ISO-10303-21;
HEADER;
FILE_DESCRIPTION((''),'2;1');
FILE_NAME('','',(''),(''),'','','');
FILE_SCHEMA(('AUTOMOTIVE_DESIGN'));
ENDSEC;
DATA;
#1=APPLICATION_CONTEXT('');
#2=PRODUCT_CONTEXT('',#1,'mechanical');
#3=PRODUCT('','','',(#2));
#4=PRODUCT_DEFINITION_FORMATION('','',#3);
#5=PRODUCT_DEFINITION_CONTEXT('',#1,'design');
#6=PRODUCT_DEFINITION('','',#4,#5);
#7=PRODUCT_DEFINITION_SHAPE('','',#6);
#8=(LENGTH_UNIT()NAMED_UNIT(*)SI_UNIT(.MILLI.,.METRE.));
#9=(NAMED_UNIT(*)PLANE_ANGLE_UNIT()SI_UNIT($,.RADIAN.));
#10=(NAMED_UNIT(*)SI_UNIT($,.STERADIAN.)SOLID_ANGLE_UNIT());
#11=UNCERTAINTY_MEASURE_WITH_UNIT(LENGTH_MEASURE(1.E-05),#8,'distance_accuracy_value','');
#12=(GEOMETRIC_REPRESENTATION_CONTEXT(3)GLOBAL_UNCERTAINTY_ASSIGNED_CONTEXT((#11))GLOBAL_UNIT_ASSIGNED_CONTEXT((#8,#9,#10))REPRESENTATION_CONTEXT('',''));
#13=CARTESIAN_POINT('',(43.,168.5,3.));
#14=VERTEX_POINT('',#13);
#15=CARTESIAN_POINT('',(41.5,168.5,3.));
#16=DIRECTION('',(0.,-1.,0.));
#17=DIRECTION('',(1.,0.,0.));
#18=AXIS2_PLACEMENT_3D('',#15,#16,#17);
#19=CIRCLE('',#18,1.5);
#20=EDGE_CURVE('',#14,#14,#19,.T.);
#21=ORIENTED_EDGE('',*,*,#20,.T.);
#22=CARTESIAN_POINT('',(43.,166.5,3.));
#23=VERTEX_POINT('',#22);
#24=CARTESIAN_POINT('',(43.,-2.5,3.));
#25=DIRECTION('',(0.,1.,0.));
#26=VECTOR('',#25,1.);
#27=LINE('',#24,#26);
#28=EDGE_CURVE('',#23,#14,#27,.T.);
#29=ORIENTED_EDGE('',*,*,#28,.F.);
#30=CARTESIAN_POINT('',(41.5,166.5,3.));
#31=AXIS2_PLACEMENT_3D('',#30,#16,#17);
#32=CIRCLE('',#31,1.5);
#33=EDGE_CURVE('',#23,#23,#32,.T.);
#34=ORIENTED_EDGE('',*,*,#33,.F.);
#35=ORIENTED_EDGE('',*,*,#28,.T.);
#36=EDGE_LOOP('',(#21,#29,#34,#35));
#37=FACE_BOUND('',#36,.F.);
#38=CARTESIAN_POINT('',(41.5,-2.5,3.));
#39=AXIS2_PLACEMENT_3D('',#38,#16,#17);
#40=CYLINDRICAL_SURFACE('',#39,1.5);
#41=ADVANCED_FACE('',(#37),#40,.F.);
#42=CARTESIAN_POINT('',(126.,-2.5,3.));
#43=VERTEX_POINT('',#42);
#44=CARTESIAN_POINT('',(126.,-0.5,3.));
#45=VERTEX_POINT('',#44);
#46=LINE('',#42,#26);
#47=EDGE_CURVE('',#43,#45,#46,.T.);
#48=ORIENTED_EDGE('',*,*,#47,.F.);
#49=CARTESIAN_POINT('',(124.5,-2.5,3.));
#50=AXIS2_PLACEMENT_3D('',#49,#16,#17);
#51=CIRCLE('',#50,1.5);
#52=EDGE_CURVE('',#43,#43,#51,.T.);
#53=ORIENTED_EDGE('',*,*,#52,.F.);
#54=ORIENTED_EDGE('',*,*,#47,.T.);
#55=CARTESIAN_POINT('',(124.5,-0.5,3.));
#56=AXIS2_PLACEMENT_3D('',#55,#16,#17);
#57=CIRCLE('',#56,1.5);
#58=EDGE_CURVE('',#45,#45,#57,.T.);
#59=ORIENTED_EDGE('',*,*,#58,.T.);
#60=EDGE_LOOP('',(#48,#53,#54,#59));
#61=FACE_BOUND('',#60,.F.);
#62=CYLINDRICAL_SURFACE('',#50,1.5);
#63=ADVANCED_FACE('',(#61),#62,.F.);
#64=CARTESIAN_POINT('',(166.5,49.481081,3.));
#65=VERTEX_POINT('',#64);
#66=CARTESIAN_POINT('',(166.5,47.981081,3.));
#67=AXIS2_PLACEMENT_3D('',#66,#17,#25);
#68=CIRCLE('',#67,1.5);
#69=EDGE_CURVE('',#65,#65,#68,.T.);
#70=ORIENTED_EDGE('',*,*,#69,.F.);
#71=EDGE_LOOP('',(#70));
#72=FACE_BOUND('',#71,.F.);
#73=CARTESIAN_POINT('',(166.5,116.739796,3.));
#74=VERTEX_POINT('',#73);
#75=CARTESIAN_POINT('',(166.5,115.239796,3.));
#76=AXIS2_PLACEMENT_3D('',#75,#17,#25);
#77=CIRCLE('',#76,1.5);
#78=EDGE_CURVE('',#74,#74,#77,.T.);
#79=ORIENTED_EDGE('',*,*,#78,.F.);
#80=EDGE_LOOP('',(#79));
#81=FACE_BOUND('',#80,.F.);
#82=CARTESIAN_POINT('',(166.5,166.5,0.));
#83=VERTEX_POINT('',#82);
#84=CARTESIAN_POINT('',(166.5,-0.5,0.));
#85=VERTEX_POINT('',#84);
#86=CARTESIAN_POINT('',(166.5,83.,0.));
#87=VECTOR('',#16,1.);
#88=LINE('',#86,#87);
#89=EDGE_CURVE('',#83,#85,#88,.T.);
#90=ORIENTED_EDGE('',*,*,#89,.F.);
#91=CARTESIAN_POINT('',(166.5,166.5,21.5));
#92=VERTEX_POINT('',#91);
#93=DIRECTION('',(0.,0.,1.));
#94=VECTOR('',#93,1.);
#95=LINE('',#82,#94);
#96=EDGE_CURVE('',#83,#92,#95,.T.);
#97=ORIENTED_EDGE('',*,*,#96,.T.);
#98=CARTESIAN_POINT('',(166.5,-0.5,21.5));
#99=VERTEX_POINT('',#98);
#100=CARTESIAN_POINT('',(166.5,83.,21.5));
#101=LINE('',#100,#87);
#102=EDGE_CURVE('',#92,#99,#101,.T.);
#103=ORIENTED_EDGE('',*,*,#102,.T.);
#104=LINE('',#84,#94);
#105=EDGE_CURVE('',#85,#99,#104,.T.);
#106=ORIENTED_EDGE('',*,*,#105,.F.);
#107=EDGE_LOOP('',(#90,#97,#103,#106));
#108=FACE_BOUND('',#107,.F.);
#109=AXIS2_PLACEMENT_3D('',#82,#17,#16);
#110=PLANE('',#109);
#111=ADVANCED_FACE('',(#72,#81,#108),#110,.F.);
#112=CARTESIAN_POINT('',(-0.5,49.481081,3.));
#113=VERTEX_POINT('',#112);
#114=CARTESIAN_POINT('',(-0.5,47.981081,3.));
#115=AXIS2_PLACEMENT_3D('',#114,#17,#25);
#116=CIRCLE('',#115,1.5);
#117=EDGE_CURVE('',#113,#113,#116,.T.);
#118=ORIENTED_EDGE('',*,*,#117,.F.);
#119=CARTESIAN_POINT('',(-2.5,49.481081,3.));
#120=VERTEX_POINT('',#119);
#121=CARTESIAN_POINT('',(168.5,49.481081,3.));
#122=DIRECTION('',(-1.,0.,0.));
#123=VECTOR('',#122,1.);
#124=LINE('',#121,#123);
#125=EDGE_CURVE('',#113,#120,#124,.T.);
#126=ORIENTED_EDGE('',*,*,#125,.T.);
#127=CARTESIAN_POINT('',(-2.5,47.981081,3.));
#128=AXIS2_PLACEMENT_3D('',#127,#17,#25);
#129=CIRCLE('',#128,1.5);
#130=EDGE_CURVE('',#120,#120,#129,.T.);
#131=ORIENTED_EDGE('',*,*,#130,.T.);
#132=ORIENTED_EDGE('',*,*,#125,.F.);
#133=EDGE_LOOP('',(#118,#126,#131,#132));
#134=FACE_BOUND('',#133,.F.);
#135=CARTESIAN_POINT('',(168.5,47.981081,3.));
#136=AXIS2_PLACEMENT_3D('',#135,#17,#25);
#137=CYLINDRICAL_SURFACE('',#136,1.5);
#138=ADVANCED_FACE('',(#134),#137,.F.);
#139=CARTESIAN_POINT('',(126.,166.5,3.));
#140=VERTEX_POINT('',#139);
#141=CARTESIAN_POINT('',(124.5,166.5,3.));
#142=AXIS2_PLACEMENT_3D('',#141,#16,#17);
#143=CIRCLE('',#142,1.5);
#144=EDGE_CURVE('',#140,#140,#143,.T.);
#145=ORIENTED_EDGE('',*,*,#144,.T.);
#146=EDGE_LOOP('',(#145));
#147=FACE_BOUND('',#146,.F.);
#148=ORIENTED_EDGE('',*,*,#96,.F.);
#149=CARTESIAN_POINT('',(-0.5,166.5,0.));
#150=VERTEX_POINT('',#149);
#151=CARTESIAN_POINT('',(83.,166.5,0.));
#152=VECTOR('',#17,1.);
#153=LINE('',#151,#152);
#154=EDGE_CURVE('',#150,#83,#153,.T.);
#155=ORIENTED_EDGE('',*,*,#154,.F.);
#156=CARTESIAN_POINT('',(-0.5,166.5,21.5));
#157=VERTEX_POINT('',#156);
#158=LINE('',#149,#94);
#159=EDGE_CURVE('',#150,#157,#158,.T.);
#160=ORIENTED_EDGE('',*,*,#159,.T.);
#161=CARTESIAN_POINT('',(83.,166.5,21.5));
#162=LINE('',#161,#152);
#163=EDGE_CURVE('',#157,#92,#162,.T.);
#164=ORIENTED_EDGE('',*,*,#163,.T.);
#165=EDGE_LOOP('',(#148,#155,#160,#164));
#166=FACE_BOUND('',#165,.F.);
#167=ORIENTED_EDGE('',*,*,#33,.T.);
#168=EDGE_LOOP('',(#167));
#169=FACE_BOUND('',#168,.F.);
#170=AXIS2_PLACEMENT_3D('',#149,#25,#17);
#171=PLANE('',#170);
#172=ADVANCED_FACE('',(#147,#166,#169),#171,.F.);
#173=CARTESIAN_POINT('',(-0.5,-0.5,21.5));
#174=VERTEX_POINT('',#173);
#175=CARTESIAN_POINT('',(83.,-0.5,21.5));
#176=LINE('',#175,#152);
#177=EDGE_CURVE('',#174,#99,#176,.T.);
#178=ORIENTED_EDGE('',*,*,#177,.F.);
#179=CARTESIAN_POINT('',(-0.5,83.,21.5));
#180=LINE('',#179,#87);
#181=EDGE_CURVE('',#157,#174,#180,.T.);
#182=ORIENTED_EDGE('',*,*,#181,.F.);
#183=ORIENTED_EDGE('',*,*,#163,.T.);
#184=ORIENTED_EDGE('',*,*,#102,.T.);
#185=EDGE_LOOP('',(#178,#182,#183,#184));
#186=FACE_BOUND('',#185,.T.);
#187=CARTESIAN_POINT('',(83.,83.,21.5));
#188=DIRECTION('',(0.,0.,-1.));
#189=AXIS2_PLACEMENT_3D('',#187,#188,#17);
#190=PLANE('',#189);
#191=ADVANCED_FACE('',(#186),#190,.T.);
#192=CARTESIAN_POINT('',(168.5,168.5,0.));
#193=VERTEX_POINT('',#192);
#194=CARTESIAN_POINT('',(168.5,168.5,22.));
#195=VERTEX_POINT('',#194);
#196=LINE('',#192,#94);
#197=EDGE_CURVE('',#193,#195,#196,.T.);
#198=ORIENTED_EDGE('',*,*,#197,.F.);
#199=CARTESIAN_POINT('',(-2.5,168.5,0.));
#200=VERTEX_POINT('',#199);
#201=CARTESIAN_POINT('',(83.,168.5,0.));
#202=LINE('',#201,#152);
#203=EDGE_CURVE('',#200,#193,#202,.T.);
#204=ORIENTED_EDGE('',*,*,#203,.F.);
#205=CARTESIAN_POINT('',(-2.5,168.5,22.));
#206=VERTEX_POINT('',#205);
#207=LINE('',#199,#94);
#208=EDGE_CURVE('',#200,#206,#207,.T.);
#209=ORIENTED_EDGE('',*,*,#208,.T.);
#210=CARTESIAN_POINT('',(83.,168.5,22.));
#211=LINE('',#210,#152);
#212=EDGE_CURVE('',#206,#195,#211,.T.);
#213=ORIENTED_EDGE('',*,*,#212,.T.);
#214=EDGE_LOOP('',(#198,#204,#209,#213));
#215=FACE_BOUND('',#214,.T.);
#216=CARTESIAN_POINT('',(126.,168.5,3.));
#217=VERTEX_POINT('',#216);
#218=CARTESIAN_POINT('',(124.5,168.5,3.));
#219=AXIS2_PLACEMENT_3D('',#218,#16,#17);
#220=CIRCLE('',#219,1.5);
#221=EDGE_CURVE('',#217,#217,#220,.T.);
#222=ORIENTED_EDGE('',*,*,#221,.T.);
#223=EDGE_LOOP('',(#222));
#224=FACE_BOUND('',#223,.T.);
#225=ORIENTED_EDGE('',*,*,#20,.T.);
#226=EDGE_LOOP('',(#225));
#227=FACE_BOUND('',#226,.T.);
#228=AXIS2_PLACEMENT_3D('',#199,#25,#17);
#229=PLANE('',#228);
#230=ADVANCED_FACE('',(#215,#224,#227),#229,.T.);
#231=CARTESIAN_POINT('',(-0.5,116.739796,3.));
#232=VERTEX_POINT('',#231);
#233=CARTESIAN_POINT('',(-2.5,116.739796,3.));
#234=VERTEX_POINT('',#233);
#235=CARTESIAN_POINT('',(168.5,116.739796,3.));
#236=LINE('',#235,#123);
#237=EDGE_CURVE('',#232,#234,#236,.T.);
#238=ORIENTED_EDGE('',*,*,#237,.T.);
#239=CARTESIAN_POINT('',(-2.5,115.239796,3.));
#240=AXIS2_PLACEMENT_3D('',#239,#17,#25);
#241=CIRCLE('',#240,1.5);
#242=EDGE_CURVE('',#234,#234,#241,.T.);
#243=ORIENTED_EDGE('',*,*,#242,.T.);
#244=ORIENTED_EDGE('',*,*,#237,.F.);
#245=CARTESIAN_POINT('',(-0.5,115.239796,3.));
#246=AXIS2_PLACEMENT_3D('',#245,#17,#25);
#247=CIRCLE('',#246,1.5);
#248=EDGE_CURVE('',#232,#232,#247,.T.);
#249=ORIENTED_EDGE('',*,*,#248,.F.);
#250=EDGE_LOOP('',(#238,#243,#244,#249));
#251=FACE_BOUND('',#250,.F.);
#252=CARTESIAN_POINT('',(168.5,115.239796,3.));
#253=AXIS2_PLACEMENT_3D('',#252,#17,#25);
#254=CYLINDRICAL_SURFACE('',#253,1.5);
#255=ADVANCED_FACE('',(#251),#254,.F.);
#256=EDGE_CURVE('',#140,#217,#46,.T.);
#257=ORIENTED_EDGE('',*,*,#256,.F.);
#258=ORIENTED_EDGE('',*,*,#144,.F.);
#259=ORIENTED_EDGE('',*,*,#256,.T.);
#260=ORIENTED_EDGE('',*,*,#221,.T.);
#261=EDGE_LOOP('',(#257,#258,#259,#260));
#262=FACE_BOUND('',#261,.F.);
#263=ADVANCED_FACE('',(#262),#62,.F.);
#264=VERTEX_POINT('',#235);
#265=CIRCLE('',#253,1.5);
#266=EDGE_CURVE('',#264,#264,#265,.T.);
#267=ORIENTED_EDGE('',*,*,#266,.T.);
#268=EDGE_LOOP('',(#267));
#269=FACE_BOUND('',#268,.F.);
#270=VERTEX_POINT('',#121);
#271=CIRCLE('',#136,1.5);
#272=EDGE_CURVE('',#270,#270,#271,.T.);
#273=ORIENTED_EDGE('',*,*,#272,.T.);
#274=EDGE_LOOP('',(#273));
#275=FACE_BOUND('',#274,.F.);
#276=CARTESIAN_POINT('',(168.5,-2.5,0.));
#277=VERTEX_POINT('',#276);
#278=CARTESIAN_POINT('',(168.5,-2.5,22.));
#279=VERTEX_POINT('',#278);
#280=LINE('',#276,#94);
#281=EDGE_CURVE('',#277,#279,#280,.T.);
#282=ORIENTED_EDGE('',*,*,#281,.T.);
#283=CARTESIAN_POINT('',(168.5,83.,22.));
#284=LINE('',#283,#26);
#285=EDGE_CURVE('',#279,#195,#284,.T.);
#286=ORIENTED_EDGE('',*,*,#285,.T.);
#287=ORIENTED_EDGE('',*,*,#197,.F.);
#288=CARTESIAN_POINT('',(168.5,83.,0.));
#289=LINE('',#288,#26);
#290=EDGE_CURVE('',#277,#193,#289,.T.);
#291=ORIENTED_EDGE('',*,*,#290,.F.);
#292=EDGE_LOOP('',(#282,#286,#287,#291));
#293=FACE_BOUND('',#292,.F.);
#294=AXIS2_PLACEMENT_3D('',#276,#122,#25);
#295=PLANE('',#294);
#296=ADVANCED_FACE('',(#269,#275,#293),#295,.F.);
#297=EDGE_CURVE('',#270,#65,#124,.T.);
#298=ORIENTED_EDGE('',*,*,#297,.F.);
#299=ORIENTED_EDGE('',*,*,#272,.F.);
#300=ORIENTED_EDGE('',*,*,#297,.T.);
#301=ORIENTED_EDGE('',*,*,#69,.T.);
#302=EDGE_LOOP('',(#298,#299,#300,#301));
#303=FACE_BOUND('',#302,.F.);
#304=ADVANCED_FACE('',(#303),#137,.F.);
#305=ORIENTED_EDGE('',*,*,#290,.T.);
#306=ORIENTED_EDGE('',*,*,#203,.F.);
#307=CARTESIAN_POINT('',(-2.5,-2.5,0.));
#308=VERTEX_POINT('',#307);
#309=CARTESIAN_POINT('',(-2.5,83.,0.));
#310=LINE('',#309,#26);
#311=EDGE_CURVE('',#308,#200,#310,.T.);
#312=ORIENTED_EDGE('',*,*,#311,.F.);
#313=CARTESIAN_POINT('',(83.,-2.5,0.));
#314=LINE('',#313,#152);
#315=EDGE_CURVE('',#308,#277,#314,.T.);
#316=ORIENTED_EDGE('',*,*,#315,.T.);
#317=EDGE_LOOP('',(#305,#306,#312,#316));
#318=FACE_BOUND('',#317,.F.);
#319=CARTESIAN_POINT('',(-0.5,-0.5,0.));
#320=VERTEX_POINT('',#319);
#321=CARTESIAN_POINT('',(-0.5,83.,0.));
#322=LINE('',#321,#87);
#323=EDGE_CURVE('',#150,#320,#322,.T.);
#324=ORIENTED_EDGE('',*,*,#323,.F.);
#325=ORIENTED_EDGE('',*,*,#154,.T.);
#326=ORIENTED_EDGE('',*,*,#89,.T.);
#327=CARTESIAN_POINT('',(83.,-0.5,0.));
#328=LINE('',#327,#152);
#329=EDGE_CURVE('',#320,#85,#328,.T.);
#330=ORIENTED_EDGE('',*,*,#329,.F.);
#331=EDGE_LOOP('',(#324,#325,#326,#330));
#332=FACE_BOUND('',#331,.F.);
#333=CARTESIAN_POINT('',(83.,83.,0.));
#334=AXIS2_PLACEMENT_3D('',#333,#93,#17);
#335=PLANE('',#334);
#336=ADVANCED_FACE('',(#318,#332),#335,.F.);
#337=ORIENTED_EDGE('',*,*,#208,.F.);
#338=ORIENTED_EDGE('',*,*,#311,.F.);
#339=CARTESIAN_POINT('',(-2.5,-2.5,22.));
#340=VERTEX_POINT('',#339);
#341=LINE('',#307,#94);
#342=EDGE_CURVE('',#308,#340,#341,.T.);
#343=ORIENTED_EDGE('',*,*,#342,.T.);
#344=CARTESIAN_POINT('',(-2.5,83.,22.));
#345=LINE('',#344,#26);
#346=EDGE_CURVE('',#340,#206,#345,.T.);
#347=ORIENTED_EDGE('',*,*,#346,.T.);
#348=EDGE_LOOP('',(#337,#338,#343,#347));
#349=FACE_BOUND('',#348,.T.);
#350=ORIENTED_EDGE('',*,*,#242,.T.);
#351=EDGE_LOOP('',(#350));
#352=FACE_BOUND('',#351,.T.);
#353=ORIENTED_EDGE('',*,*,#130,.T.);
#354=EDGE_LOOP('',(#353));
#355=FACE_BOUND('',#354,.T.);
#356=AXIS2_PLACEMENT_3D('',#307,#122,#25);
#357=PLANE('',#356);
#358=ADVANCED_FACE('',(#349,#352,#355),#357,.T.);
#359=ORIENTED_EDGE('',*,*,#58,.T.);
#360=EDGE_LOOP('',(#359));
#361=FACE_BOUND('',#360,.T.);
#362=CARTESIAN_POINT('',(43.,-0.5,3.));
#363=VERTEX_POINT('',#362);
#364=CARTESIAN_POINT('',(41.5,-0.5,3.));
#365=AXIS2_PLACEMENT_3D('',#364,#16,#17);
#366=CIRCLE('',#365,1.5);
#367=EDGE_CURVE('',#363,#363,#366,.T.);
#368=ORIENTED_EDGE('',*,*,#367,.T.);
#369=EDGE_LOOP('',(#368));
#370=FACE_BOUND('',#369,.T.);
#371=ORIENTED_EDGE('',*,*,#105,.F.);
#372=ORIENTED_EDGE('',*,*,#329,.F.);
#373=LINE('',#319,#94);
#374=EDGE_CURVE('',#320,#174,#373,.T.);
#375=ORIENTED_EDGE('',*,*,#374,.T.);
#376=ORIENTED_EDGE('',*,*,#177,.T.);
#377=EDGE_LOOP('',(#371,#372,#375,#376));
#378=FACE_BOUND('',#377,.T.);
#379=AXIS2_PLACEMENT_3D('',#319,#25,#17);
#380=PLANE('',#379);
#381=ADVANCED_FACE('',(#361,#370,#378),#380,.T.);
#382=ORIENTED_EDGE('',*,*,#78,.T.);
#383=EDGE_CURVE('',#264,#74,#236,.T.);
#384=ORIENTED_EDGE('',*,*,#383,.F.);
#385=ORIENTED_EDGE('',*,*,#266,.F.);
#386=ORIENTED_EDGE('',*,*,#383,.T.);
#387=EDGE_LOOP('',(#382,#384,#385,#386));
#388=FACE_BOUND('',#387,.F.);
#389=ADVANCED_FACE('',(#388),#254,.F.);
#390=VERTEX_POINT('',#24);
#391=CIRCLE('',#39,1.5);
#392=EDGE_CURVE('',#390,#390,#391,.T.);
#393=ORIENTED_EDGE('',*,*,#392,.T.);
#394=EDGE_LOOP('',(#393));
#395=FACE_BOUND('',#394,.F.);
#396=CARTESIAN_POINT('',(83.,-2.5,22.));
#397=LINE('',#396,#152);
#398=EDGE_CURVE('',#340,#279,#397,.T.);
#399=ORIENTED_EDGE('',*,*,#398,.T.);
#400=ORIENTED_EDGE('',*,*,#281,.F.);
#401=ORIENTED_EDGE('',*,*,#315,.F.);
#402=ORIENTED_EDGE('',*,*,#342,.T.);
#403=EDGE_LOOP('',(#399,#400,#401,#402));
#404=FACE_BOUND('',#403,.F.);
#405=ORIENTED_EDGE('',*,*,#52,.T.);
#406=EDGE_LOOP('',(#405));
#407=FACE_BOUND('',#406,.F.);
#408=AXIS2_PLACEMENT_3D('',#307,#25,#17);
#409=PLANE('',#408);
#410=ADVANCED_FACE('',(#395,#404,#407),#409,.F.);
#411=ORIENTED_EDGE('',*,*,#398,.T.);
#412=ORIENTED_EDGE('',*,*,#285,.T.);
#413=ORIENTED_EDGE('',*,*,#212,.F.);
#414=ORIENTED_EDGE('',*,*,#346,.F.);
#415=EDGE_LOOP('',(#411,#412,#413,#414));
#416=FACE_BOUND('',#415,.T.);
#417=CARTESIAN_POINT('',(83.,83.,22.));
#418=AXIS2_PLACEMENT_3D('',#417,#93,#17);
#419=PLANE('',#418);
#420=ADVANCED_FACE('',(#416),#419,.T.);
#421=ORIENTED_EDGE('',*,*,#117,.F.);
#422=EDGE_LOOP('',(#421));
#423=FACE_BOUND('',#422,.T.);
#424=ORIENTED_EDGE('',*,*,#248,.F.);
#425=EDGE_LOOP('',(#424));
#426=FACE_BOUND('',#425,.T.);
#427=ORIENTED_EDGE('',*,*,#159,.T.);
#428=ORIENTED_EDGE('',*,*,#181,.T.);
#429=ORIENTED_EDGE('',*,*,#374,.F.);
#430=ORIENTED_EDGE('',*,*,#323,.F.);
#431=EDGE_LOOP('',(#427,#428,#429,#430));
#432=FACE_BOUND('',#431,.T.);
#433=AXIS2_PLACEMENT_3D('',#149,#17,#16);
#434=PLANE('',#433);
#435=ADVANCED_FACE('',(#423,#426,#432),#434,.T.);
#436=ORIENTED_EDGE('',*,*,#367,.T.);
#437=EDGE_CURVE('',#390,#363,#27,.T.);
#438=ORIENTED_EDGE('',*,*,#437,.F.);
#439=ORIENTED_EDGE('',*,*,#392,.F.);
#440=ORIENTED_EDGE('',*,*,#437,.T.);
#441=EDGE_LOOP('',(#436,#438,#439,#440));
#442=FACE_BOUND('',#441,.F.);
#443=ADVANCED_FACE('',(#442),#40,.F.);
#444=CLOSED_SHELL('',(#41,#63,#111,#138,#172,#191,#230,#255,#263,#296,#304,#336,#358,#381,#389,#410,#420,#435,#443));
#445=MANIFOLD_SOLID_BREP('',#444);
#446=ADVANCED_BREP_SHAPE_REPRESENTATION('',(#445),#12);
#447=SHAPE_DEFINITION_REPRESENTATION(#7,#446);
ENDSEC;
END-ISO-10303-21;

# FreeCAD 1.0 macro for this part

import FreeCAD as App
import Part
import Sketcher

V = App.Vector
Q = App.Units.Quantity

doc = App.newDocument("Part")
body = doc.addObject("PartDesign::Body", "Body")

# Sketch on XY plane
sketch1 = body.newObject("Sketcher::SketchObject", "Sketch")
sketch1.AttachmentSupport = (doc.getObject("XY_Plane"), [""])
sketch1.MapMode = "FlatFace"
sketch1.addGeometry([
    Part.LineSegment(V(-2, 168, 0), V(-2, -2, 0)),
    Part.LineSegment(V(-2, -2, 0), V(168, -2, 0)),
    Part.LineSegment(V(168, -2, 0), V(168, 168, 0)),
    Part.LineSegment(V(168, 168, 0), V(-2, 168, 0)),
], False)
sketch1.addConstraint([
    Sketcher.Constraint("Coincident", 0, 2, 1, 1),
    Sketcher.Constraint("Coincident", 1, 2, 2, 1),
    Sketcher.Constraint("Coincident", 2, 2, 3, 1),
    Sketcher.Constraint("Coincident", 3, 2, 0, 1),
    Sketcher.Constraint("Vertical", 0),
    Sketcher.Constraint("Horizontal", 1),
    Sketcher.Constraint("Vertical", 2),
    Sketcher.Constraint("Horizontal", 3),
    Sketcher.Constraint("Equal", 3, 0),
    Sketcher.Constraint("DistanceX", 1, 1, 1, 2, Q("171 mm")),
    Sketcher.Constraint("DistanceX", 0, 2, -1, 1, Q("2.5 mm")),
    Sketcher.Constraint("DistanceY", 0, 2, -1, 1, Q("2.5 mm")),
])
pad1 = body.newObject("PartDesign::Pad", "Pad")
pad1.Profile = sketch1
pad1.Length = 22

# Sketch on XY plane
sketch2 = body.newObject("Sketcher::SketchObject", "Sketch001")
sketch2.AttachmentSupport = (doc.getObject("XY_Plane"), [""])
sketch2.MapMode = "FlatFace"
sketch2.addGeometry([
    Part.LineSegment(V(0, 0, 0), V(0, 166, 0)),
    Part.LineSegment(V(0, 166, 0), V(166, 166, 0)),
    Part.LineSegment(V(166, 166, 0), V(166, 0, 0)),
    Part.LineSegment(V(166, 0, 0), V(0, 0, 0)),
], False)
sketch2.addConstraint([
    Sketcher.Constraint("Coincident", 0, 2, 1, 1),
    Sketcher.Constraint("Coincident", 1, 2, 2, 1),
    Sketcher.Constraint("Coincident", 2, 2, 3, 1),
    Sketcher.Constraint("Coincident", 3, 2, 0, 1),
    Sketcher.Constraint("Vertical", 0),
    Sketcher.Constraint("Horizontal", 1),
    Sketcher.Constraint("Vertical", 2),
    Sketcher.Constraint("Horizontal", 3),
    Sketcher.Constraint("Equal", 3, 0),
    Sketcher.Constraint("DistanceX", 1, 1, 1, 2, Q("167 mm")),
    Sketcher.Constraint("DistanceX", 0, 2, -1, 1, Q("0.5 mm")),
    Sketcher.Constraint("DistanceY", -1, 1, 0, 2, Q("166.5 mm")),
])
pocket1 = body.newObject("PartDesign::Pocket", "Pocket")
pocket1.Profile = sketch2
pocket1.Length = 21.5
pocket1.Reversed = True

# Sketch on XZ plane
sketch3 = body.newObject("Sketcher::SketchObject", "Sketch002")
sketch3.AttachmentSupport = (doc.getObject("XZ_Plane"), [""])
sketch3.MapMode = "FlatFace"
sketch3.AttachmentOffset = App.Placement(V(0, 0, 2.5), App.Rotation())
sketch3.addGeometry([
    Part.Circle(V(41.5, 3, 0), V(0, 0, 1), 1.5),
    Part.Circle(V(124.5, 3, 0), V(0, 0, 1), 1.5),
], False)
sketch3.addConstraint([
    Sketcher.Constraint("Equal", 0, 1),
    Sketcher.Constraint("Horizontal", 0, 3, 1, 3),
    Sketcher.Constraint("Diameter", 0, Q("3 mm")),
    Sketcher.Constraint("DistanceY", -1, 1, 0, 3, Q("3 mm")),
    Sketcher.Constraint("DistanceX", 0, 3, 1, 3, Q("83 mm")),
    Sketcher.Constraint("DistanceX", -1, 1, 0, 3, Q("41.5 mm")),
])
pocket2 = body.newObject("PartDesign::Pocket", "Pocket001")
pocket2.Profile = sketch3
pocket2.Type = "ThroughAll"

# Sketch on YZ plane
sketch4 = body.newObject("Sketcher::SketchObject", "Sketch003")
sketch4.AttachmentSupport = (doc.getObject("YZ_Plane"), [""])
sketch4.MapMode = "FlatFace"
sketch4.AttachmentOffset = App.Placement(V(0, 0, 168.5), App.Rotation())
sketch4.addGeometry([
    Part.Circle(V(48, 3, 0), V(0, 0, 1), 1.5),
    Part.Circle(V(115.2, 3, 0), V(0, 0, 1), 1.5),
], False)
sketch4.addConstraint([
    Sketcher.Constraint("Equal", 0, 1),
    Sketcher.Constraint("Horizontal", 0, 3, 1, 3),
    Sketcher.Constraint("Diameter", 0, Q("3 mm")),
    Sketcher.Constraint("DistanceY", -1, 1, 0, 3, Q("3 mm")),
    Sketcher.Constraint("DistanceX", -1, 1, 0, 3, Q("47.981081 mm")),
    Sketcher.Constraint("DistanceX", -1, 1, 1, 3, Q("115.239796 mm")),
])
pocket3 = body.newObject("PartDesign::Pocket", "Pocket002")
pocket3.Profile = sketch4
pocket3.Type = "ThroughAll"

doc.recompute()
